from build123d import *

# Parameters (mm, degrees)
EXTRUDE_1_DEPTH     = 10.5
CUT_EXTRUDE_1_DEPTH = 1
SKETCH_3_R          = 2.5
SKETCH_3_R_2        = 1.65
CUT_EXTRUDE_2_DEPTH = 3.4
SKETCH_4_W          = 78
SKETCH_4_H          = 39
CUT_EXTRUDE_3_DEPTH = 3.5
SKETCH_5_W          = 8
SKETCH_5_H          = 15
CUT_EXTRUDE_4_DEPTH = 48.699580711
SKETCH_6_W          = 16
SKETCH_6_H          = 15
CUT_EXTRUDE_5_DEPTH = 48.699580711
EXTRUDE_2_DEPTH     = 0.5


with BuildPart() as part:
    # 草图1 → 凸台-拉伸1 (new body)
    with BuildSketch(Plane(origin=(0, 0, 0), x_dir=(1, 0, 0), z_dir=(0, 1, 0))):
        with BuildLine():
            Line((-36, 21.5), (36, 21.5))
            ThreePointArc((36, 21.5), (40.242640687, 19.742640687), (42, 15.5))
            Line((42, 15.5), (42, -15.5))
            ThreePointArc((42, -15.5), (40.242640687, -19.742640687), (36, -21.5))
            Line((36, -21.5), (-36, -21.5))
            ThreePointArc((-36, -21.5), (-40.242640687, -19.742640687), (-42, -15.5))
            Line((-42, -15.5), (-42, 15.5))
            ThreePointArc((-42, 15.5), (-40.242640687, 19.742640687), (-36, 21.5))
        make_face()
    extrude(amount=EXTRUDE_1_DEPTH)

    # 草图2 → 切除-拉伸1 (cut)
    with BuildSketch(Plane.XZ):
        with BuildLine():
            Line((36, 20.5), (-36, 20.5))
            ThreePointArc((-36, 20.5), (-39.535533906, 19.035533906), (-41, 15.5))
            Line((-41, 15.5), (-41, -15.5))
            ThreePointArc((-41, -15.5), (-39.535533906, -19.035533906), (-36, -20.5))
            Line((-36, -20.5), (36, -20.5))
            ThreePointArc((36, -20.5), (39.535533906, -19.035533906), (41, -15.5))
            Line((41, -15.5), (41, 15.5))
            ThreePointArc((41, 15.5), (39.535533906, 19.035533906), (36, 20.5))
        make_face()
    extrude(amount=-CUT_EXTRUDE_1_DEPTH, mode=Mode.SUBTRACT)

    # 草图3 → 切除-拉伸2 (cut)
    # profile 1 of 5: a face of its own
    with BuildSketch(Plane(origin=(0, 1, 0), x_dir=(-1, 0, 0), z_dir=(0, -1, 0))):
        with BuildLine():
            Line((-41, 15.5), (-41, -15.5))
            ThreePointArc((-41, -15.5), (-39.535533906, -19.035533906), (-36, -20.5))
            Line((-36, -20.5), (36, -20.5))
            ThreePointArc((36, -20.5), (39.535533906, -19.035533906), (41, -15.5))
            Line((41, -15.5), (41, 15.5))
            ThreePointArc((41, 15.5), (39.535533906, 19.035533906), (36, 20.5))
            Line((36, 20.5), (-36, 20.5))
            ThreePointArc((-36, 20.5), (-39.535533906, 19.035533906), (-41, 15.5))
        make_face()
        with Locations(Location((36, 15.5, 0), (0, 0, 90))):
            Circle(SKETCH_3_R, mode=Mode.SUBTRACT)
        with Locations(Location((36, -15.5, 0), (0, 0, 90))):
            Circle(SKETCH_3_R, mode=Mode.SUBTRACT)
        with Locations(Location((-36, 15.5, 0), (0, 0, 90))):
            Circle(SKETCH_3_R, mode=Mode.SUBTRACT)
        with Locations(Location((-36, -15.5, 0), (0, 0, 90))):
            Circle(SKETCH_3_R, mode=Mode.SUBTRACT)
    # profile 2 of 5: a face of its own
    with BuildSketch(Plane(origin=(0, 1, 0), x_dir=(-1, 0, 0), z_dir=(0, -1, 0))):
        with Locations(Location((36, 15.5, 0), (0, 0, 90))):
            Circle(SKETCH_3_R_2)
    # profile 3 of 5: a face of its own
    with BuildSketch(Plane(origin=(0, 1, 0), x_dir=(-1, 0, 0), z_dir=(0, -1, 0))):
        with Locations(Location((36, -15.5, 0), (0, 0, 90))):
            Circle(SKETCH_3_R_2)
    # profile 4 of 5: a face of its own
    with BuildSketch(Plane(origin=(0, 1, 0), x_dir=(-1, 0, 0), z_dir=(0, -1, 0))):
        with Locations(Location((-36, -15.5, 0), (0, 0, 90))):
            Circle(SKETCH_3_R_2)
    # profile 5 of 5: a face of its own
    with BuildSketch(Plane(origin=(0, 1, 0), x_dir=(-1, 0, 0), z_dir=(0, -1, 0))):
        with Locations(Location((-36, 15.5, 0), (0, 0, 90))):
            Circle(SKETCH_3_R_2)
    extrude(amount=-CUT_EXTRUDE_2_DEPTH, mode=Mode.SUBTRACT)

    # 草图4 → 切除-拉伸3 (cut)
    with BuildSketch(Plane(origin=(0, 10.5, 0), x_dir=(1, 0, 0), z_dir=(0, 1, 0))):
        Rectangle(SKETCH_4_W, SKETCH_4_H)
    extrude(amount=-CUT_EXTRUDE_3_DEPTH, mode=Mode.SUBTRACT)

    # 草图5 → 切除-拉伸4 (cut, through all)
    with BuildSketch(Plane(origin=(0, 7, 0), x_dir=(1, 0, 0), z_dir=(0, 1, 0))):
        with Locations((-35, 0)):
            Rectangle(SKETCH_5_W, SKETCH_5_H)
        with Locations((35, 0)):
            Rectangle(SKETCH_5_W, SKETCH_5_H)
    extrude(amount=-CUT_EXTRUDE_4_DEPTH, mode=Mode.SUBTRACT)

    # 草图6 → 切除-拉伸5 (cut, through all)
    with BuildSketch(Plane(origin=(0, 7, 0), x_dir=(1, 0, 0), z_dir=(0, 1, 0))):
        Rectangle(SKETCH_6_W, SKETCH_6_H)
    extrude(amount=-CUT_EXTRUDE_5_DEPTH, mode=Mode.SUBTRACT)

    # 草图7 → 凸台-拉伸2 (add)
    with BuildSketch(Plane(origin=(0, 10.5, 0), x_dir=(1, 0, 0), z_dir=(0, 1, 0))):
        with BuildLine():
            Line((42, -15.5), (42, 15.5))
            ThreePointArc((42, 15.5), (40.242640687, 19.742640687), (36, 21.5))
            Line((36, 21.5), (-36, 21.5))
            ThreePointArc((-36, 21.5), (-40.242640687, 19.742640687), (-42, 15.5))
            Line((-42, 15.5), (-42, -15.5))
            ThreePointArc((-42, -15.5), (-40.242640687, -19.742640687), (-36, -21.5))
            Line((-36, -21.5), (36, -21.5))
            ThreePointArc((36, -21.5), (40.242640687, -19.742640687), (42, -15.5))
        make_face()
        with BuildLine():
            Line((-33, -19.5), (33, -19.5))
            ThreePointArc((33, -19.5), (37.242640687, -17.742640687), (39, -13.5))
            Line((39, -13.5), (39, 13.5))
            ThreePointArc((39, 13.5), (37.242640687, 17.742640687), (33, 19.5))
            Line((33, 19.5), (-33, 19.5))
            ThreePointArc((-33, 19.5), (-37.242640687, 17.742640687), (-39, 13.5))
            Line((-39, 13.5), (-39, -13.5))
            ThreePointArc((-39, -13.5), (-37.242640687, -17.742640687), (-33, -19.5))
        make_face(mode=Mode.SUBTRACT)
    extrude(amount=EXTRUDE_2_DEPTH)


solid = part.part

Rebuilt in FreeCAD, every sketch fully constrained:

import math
import FreeCAD as App
import Part
import Sketcher

V = App.Vector
Q = App.Units.Quantity


def add_polygon(sketch, points):
    """Adds a closed chain of lines whose ends are joined by coincident constraints."""
    first, n = sketch.GeometryCount, len(points)
    for a, b in zip(points, points[1:] + points[:1]):
        sketch.addGeometry(Part.LineSegment(App.Vector(*a, 0), App.Vector(*b, 0)), False)
    for i in range(n):
        sketch.addConstraint(Sketcher.Constraint("Coincident", first + i, 2, first + (i + 1) % n, 1))

doc = App.newDocument("Part")
body = doc.addObject("PartDesign::Body", "Body")

sketch1 = body.newObject("Sketcher::SketchObject", "Sketch")
sketch1.AttachmentSupport = (doc.getObject("XZ_Plane"), [""])
sketch1.MapMode = "FlatFace"
sketch1.addGeometry([
    Part.LineSegment(V(36, -22, 0), V(-36, -22, 0)),
    Part.ArcOfCircle(Part.Circle(V(-36, -16, 0), V(0, 0, 1), 6), math.radians(180), math.radians(270)),
    Part.LineSegment(V(-42, -16, 0), V(-42, 16, 0)),
    Part.ArcOfCircle(Part.Circle(V(-36, 16, 0), V(0, 0, 1), 6), math.radians(90), math.radians(180)),
    Part.LineSegment(V(-36, 22, 0), V(36, 22, 0)),
    Part.ArcOfCircle(Part.Circle(V(36, 16, 0), V(0, 0, 1), 6), math.radians(0), math.radians(90)),
    Part.LineSegment(V(42, 16, 0), V(42, -16, 0)),
    Part.ArcOfCircle(Part.Circle(V(36, -16, 0), V(0, 0, 1), 6), math.radians(-90), math.radians(0)),
], False)
sketch1.addConstraint([
    Sketcher.Constraint("Tangent", 0, 2, 1, 2),
    Sketcher.Constraint("Tangent", 1, 1, 2, 1),
    Sketcher.Constraint("Tangent", 2, 2, 3, 2),
    Sketcher.Constraint("Tangent", 3, 1, 4, 1),
    Sketcher.Constraint("Tangent", 4, 2, 5, 2),
    Sketcher.Constraint("Tangent", 5, 1, 6, 1),
    Sketcher.Constraint("Tangent", 6, 2, 7, 2),
    Sketcher.Constraint("Tangent", 7, 1, 0, 1),
    Sketcher.Constraint("Horizontal", 0),
    Sketcher.Constraint("Vertical", 2),
    Sketcher.Constraint("Horizontal", 4),
    Sketcher.Constraint("Vertical", 6),
    Sketcher.Constraint("Equal", 1, 3),
    Sketcher.Constraint("Equal", 3, 5),
    Sketcher.Constraint("Equal", 5, 7),
    Sketcher.Constraint("Symmetric", 1, 3, 5, 3, -1, 1),
    Sketcher.Constraint("Radius", 1, Q("6 mm")),
    Sketcher.Constraint("DistanceX", 0, 2, 0, 1, Q("72 mm")),
    Sketcher.Constraint("DistanceY", 2, 1, 2, 2, Q("31 mm")),
])
pad1 = body.newObject("PartDesign::Pad", "Pad")
pad1.Profile = sketch1
pad1.Length = 10.5
pad1.Reversed = True

sketch2 = body.newObject("Sketcher::SketchObject", "Sketch001")
sketch2.AttachmentSupport = (doc.getObject("XZ_Plane"), [""])
sketch2.MapMode = "FlatFace"
sketch2.addGeometry([
    Part.LineSegment(V(36, 20, 0), V(-36, 20, 0)),
    Part.ArcOfCircle(Part.Circle(V(-36, 16, 0), V(0, 0, 1), 5), math.radians(90), math.radians(180)),
    Part.LineSegment(V(-41, 16, 0), V(-41, -16, 0)),
    Part.ArcOfCircle(Part.Circle(V(-36, -16, 0), V(0, 0, 1), 5), math.radians(180), math.radians(270)),
    Part.LineSegment(V(-36, -20, 0), V(36, -20, 0)),
    Part.ArcOfCircle(Part.Circle(V(36, -16, 0), V(0, 0, 1), 5), math.radians(-90), math.radians(0)),
    Part.LineSegment(V(41, -16, 0), V(41, 16, 0)),
    Part.ArcOfCircle(Part.Circle(V(36, 16, 0), V(0, 0, 1), 5), math.radians(0), math.radians(90)),
], False)
sketch2.addConstraint([
    Sketcher.Constraint("Tangent", 0, 2, 1, 1),
    Sketcher.Constraint("Tangent", 1, 2, 2, 1),
    Sketcher.Constraint("Tangent", 2, 2, 3, 1),
    Sketcher.Constraint("Tangent", 3, 2, 4, 1),
    Sketcher.Constraint("Tangent", 4, 2, 5, 1),
    Sketcher.Constraint("Tangent", 5, 2, 6, 1),
    Sketcher.Constraint("Tangent", 6, 2, 7, 1),
    Sketcher.Constraint("Tangent", 7, 2, 0, 1),
    Sketcher.Constraint("Horizontal", 0),
    Sketcher.Constraint("Vertical", 2),
    Sketcher.Constraint("Horizontal", 4),
    Sketcher.Constraint("Vertical", 6),
    Sketcher.Constraint("Equal", 1, 3),
    Sketcher.Constraint("Equal", 3, 5),
    Sketcher.Constraint("Equal", 5, 7),
    Sketcher.Constraint("Symmetric", 1, 3, 5, 3, -1, 1),
    Sketcher.Constraint("Radius", 1, Q("5 mm")),
    Sketcher.Constraint("DistanceX", 0, 2, 0, 1, Q("72 mm")),
    Sketcher.Constraint("DistanceY", 2, 2, 2, 1, Q("31 mm")),
])
pocket1 = body.newObject("PartDesign::Pocket", "Pocket")
pocket1.Profile = sketch2
pocket1.Length = 1

sketch3 = body.newObject("Sketcher::SketchObject", "Sketch002")
sketch3.AttachmentSupport = (doc.getObject("XZ_Plane"), [""])
sketch3.MapMode = "FlatFace"
sketch3.AttachmentOffset = App.Placement(V(0, 0, -1), App.Rotation())
sketch3.addGeometry([
    Part.LineSegment(V(41, -15.5, 0), V(41, 15.5, 0)),
    Part.ArcOfCircle(Part.Circle(V(36, 15.5, 0), V(0, 0, 1), 5), math.radians(0), math.radians(90)),
    Part.LineSegment(V(36, 20.5, 0), V(-36, 20.5, 0)),
    Part.ArcOfCircle(Part.Circle(V(-36, 15.5, 0), V(0, 0, 1), 5), math.radians(90), math.radians(180)),
    Part.LineSegment(V(-41, 15.5, 0), V(-41, -15.5, 0)),
    Part.ArcOfCircle(Part.Circle(V(-36, -15.5, 0), V(0, 0, 1), 5), math.radians(180), math.radians(270)),
    Part.LineSegment(V(-36, -20.5, 0), V(36, -20.5, 0)),
    Part.ArcOfCircle(Part.Circle(V(36, -15.5, 0), V(0, 0, 1), 5), math.radians(-90), math.radians(0)),
    Part.Circle(V(36, 15.5, 0), V(0, 0, 1), 2.5),
    Part.Circle(V(-36, 15.5, 0), V(0, 0, 1), 2.5),
    Part.Circle(V(36, -15.5, 0), V(0, 0, 1), 2.5),
    Part.Circle(V(-36, -15.5, 0), V(0, 0, 1), 2.5),
    Part.Circle(V(-36, -15.5, 0), V(0, 0, 1), 1.6),
    Part.Circle(V(-36, 15.5, 0), V(0, 0, 1), 1.6),
    Part.Circle(V(36, 15.5, 0), V(0, 0, 1), 1.6),
    Part.Circle(V(36, -15.5, 0), V(0, 0, 1), 1.6),
], False)
sketch3.addConstraint([
    Sketcher.Constraint("Tangent", 0, 2, 1, 1),
    Sketcher.Constraint("Tangent", 1, 2, 2, 1),
    Sketcher.Constraint("Tangent", 2, 2, 3, 1),
    Sketcher.Constraint("Tangent", 3, 2, 4, 1),
    Sketcher.Constraint("Tangent", 4, 2, 5, 1),
    Sketcher.Constraint("Tangent", 5, 2, 6, 1),
    Sketcher.Constraint("Tangent", 6, 2, 7, 1),
    Sketcher.Constraint("Tangent", 7, 2, 0, 1),
    Sketcher.Constraint("Vertical", 0),
    Sketcher.Constraint("Horizontal", 2),
    Sketcher.Constraint("Vertical", 4),
    Sketcher.Constraint("Horizontal", 6),
    Sketcher.Constraint("Coincident", 8, 3, 1, 3),
    Sketcher.Constraint("Coincident", 9, 3, 3, 3),
    Sketcher.Constraint("Coincident", 10, 3, 7, 3),
    Sketcher.Constraint("Coincident", 11, 3, 5, 3),
    Sketcher.Constraint("Coincident", 12, 3, 5, 3),
    Sketcher.Constraint("Coincident", 13, 3, 3, 3),
    Sketcher.Constraint("Coincident", 14, 3, 1, 3),
    Sketcher.Constraint("Coincident", 15, 3, 7, 3),
    Sketcher.Constraint("Equal", 1, 3),
    Sketcher.Constraint("Equal", 3, 5),
    Sketcher.Constraint("Equal", 5, 7),
    Sketcher.Constraint("Equal", 8, 9),
    Sketcher.Constraint("Equal", 9, 10),
    Sketcher.Constraint("Equal", 10, 11),
    Sketcher.Constraint("Equal", 12, 13),
    Sketcher.Constraint("Equal", 13, 14),
    Sketcher.Constraint("Equal", 14, 15),
    Sketcher.Constraint("Symmetric", 1, 3, 5, 3, -1, 1),
    Sketcher.Constraint("Diameter", 8, Q("5 mm")),
    Sketcher.Constraint("Radius", 1, Q("5 mm")),
    Sketcher.Constraint("Diameter", 12, Q("3.3 mm")),
    Sketcher.Constraint("DistanceX", 2, 2, 2, 1, Q("72 mm")),
    Sketcher.Constraint("DistanceY", 0, 1, 0, 2, Q("31 mm")),
])
pocket2 = body.newObject("PartDesign::Pocket", "Pocket001")
pocket2.Profile = sketch3
pocket2.Length = 3.4

sketch4 = body.newObject("Sketcher::SketchObject", "Sketch003")
sketch4.AttachmentSupport = (doc.getObject("XZ_Plane"), [""])
sketch4.MapMode = "FlatFace"
sketch4.AttachmentOffset = App.Placement(V(0, 0, -10.5), App.Rotation())
add_polygon(sketch4, [(-39, -20), (-39, 20), (39, 20), (39, -20)])
sketch4.addConstraint([
    Sketcher.Constraint("Vertical", 0),
    Sketcher.Constraint("Horizontal", 1),
    Sketcher.Constraint("Vertical", 2),
    Sketcher.Constraint("Horizontal", 3),
    Sketcher.Constraint("Symmetric", 0, 2, 2, 2, -1, 1),
    Sketcher.Constraint("DistanceX", 1, 1, 1, 2, Q("78 mm")),
    Sketcher.Constraint("DistanceY", 0, 1, 0, 2, Q("39 mm")),
])
pocket3 = body.newObject("PartDesign::Pocket", "Pocket002")
pocket3.Profile = sketch4
pocket3.Length = 3.5
pocket3.Reversed = True

sketch5 = body.newObject("Sketcher::SketchObject", "Sketch004")
sketch5.AttachmentSupport = (doc.getObject("XZ_Plane"), [""])
sketch5.MapMode = "FlatFace"
sketch5.AttachmentOffset = App.Placement(V(0, 0, -7), App.Rotation())
add_polygon(sketch5, [(-39, -8), (-39, 8), (-31, 8), (-31, -8)])
add_polygon(sketch5, [(31, -8), (31, 8), (39, 8), (39, -8)])
sketch5.addConstraint([
    Sketcher.Constraint("Vertical", 0),
    Sketcher.Constraint("Horizontal", 1),
    Sketcher.Constraint("Vertical", 2),
    Sketcher.Constraint("Horizontal", 3),
    Sketcher.Constraint("Vertical", 4),
    Sketcher.Constraint("Horizontal", 5),
    Sketcher.Constraint("Vertical", 6),
    Sketcher.Constraint("Horizontal", 7),
    Sketcher.Constraint("Symmetric", 2, 2, 4, 2, -1, 1),
    Sketcher.Constraint("Symmetric", 0, 2, 6, 2, -1, 1),
    Sketcher.Constraint("Horizontal", 1, 2, 4, 2),
    Sketcher.Constraint("DistanceX", 1, 1, 1, 2, Q("8 mm")),
    Sketcher.Constraint("DistanceY", 0, 1, 0, 2, Q("15 mm")),
    Sketcher.Constraint("DistanceX", 0, 2, -1, 1, Q("39 mm")),
])
pocket4 = body.newObject("PartDesign::Pocket", "Pocket003")
pocket4.Profile = sketch5
pocket4.Type = "ThroughAll"
pocket4.Reversed = True

sketch6 = body.newObject("Sketcher::SketchObject", "Sketch005")
sketch6.AttachmentSupport = (doc.getObject("XZ_Plane"), [""])
sketch6.MapMode = "FlatFace"
sketch6.AttachmentOffset = App.Placement(V(0, 0, -7), App.Rotation())
add_polygon(sketch6, [(-8, -8), (-8, 8), (8, 8), (8, -8)])
sketch6.addConstraint([
    Sketcher.Constraint("Vertical", 0),
    Sketcher.Constraint("Horizontal", 1),
    Sketcher.Constraint("Vertical", 2),
    Sketcher.Constraint("Horizontal", 3),
    Sketcher.Constraint("Symmetric", 0, 2, 2, 2, -1, 1),
    Sketcher.Constraint("DistanceX", 1, 1, 1, 2, Q("16 mm")),
    Sketcher.Constraint("DistanceY", 0, 1, 0, 2, Q("15 mm")),
])
pocket5 = body.newObject("PartDesign::Pocket", "Pocket004")
pocket5.Profile = sketch6
pocket5.Type = "ThroughAll"
pocket5.Reversed = True

sketch7 = body.newObject("Sketcher::SketchObject", "Sketch006")
sketch7.AttachmentSupport = (doc.getObject("XZ_Plane"), [""])
sketch7.MapMode = "FlatFace"
sketch7.AttachmentOffset = App.Placement(V(0, 0, -10.5), App.Rotation())
sketch7.addGeometry([
    Part.LineSegment(V(42, 16, 0), V(42, -16, 0)),
    Part.ArcOfCircle(Part.Circle(V(36, -16, 0), V(0, 0, 1), 6), math.radians(-90), math.radians(0)),
    Part.LineSegment(V(36, -22, 0), V(-36, -22, 0)),
    Part.ArcOfCircle(Part.Circle(V(-36, -16, 0), V(0, 0, 1), 6), math.radians(180), math.radians(270)),
    Part.LineSegment(V(-42, -16, 0), V(-42, 16, 0)),
    Part.ArcOfCircle(Part.Circle(V(-36, 16, 0), V(0, 0, 1), 6), math.radians(90), math.radians(180)),
    Part.LineSegment(V(-36, 22, 0), V(36, 22, 0)),
    Part.ArcOfCircle(Part.Circle(V(36, 16, 0), V(0, 0, 1), 6), math.radians(0), math.radians(90)),
    Part.LineSegment(V(33, 20, 0), V(-33, 20, 0)),
    Part.ArcOfCircle(Part.Circle(V(-33, 14, 0), V(0, 0, 1), 6), math.radians(90), math.radians(180)),
    Part.LineSegment(V(-39, 14, 0), V(-39, -14, 0)),
    Part.ArcOfCircle(Part.Circle(V(-33, -14, 0), V(0, 0, 1), 6), math.radians(180), math.radians(270)),
    Part.LineSegment(V(-33, -20, 0), V(33, -20, 0)),
    Part.ArcOfCircle(Part.Circle(V(33, -14, 0), V(0, 0, 1), 6), math.radians(-90), math.radians(0)),
    Part.LineSegment(V(39, -14, 0), V(39, 14, 0)),
    Part.ArcOfCircle(Part.Circle(V(33, 14, 0), V(0, 0, 1), 6), math.radians(0), math.radians(90)),
], False)
sketch7.addConstraint([
    Sketcher.Constraint("Tangent", 0, 2, 1, 2),
    Sketcher.Constraint("Tangent", 1, 1, 2, 1),
    Sketcher.Constraint("Tangent", 2, 2, 3, 2),
    Sketcher.Constraint("Tangent", 3, 1, 4, 1),
    Sketcher.Constraint("Tangent", 4, 2, 5, 2),
    Sketcher.Constraint("Tangent", 5, 1, 6, 1),
    Sketcher.Constraint("Tangent", 6, 2, 7, 2),
    Sketcher.Constraint("Tangent", 7, 1, 0, 1),
    Sketcher.Constraint("Tangent", 8, 2, 9, 1),
    Sketcher.Constraint("Tangent", 9, 2, 10, 1),
    Sketcher.Constraint("Tangent", 10, 2, 11, 1),
    Sketcher.Constraint("Tangent", 11, 2, 12, 1),
    Sketcher.Constraint("Tangent", 12, 2, 13, 1),
    Sketcher.Constraint("Tangent", 13, 2, 14, 1),
    Sketcher.Constraint("Tangent", 14, 2, 15, 1),
    Sketcher.Constraint("Tangent", 15, 2, 8, 1),
    Sketcher.Constraint("Vertical", 0),
    Sketcher.Constraint("Horizontal", 2),
    Sketcher.Constraint("Vertical", 4),
    Sketcher.Constraint("Horizontal", 6),
    Sketcher.Constraint("Horizontal", 8),
    Sketcher.Constraint("Vertical", 10),
    Sketcher.Constraint("Horizontal", 12),
    Sketcher.Constraint("Vertical", 14),
    Sketcher.Constraint("Equal", 1, 3),
    Sketcher.Constraint("Equal", 3, 5),
    Sketcher.Constraint("Equal", 5, 7),
    Sketcher.Constraint("Equal", 7, 9),
    Sketcher.Constraint("Equal", 9, 11),
    Sketcher.Constraint("Equal", 11, 13),
    Sketcher.Constraint("Equal", 13, 15),
    Sketcher.Constraint("Symmetric", 1, 3, 5, 3, -1, 1),
    Sketcher.Constraint("Symmetric", 9, 3, 13, 3, -1, 1),
    Sketcher.Constraint("Radius", 1, Q("6 mm")),
    Sketcher.Constraint("DistanceX", 2, 2, 2, 1, Q("72 mm")),
    Sketcher.Constraint("DistanceX", 8, 2, 8, 1, Q("66 mm")),
    Sketcher.Constraint("DistanceY", 0, 2, 0, 1, Q("31 mm")),
    Sketcher.Constraint("DistanceY", 10, 2, 10, 1, Q("27 mm")),
])
pad2 = body.newObject("PartDesign::Pad", "Pad001")
pad2.Profile = sketch7
pad2.Length = 0.5
pad2.Reversed = True

doc.recompute()
